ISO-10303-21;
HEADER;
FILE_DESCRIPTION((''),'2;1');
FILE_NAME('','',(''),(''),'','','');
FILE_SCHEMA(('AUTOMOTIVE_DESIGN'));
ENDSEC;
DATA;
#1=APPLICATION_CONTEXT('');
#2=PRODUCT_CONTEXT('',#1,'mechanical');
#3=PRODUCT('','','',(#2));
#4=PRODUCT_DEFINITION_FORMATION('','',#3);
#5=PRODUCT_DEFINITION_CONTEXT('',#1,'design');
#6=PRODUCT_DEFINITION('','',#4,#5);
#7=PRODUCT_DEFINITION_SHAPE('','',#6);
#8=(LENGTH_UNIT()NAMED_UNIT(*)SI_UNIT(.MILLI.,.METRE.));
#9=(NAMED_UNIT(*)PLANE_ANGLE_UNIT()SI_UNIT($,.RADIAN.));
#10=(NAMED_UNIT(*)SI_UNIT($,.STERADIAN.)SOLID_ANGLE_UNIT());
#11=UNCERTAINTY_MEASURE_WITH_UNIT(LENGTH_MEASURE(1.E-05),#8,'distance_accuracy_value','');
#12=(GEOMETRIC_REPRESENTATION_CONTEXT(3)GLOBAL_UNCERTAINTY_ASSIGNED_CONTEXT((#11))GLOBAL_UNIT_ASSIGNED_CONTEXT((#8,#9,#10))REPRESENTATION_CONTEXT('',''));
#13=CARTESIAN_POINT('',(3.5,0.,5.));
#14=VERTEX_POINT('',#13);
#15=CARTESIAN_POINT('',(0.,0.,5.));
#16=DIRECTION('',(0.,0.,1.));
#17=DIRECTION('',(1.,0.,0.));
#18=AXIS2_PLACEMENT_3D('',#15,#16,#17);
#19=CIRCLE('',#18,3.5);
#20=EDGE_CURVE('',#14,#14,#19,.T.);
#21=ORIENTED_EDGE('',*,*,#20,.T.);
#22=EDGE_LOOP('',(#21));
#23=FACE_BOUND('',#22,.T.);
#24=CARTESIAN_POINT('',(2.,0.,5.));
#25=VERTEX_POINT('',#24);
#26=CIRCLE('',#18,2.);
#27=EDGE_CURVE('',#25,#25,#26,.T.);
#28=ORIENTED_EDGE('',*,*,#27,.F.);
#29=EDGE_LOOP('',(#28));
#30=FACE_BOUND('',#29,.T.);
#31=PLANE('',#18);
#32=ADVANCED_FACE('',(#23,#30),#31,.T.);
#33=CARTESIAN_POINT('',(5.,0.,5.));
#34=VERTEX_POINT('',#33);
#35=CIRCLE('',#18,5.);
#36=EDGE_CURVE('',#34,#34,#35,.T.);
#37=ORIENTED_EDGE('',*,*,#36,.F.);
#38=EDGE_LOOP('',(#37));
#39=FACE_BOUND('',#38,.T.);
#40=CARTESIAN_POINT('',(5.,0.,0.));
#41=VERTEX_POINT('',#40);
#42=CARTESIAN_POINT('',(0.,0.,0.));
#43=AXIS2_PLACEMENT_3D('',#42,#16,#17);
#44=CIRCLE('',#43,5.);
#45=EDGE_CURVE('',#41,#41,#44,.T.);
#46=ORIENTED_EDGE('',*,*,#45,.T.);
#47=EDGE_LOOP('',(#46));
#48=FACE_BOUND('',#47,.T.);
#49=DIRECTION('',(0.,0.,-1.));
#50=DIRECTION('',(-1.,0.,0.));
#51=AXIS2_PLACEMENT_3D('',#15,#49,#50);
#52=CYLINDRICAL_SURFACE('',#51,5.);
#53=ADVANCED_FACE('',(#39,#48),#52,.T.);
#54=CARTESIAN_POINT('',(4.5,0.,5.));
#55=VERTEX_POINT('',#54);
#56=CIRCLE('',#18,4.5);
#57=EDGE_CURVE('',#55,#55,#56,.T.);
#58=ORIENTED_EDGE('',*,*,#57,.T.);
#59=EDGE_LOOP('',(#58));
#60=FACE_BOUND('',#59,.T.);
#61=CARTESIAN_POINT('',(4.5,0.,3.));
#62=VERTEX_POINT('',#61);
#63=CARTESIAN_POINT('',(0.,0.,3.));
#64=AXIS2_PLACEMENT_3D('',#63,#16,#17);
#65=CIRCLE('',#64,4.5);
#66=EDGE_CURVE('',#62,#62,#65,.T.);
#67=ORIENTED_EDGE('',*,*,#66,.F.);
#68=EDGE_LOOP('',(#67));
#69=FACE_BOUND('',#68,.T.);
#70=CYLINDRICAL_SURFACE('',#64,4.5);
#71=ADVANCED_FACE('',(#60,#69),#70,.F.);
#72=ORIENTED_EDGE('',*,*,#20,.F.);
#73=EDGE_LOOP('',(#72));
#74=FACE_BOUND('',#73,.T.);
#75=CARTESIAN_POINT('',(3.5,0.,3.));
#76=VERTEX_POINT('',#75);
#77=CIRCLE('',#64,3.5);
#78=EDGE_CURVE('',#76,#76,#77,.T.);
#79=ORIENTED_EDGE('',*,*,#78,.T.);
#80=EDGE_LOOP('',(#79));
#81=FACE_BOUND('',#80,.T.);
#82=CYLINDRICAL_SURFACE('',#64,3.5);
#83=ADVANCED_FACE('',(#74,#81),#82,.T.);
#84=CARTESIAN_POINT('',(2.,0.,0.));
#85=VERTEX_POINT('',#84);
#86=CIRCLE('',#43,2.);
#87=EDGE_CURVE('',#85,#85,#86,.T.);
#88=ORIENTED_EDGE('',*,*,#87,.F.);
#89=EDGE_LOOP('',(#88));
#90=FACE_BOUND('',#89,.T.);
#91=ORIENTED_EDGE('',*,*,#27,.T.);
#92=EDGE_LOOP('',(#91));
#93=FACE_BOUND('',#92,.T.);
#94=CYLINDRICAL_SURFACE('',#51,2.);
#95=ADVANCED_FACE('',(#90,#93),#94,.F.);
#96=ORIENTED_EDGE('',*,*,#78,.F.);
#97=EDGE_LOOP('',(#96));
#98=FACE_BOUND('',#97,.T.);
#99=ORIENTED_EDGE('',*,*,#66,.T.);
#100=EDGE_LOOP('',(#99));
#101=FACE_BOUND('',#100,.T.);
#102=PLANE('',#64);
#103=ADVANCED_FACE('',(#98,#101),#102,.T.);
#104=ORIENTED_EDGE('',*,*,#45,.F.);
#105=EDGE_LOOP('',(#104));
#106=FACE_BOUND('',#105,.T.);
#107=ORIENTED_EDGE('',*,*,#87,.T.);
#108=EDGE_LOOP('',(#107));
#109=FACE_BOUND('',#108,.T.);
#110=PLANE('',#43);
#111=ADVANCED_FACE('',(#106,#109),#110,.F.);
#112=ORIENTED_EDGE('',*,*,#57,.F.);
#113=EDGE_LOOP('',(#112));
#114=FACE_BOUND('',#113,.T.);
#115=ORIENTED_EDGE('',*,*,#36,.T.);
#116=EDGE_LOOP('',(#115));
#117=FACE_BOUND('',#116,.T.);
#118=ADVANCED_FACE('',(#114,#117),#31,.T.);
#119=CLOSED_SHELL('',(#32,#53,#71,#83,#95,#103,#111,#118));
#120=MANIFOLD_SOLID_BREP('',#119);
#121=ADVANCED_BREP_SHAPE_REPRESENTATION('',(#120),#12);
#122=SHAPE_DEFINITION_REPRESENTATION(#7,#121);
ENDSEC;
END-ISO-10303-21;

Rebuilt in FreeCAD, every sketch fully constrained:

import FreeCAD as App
import Part
import Sketcher

doc = App.newDocument("Part")
body = doc.addObject("PartDesign::Body", "Body")

sketch1 = doc.addObject("Sketcher::SketchObject", "Sketch")
body.addObject(sketch1)
sketch1.AttachmentSupport = (doc.XY_Plane, [""])
sketch1.MapMode = "FlatFace"
sketch1.addGeometry([
    Part.Circle(App.Vector(0, 0, 0), App.Vector(0, 0, 1), 5),
    Part.Circle(App.Vector(0, 0, 0), App.Vector(0, 0, 1), 2),
], False)
sketch1.addConstraint([
    Sketcher.Constraint("Coincident", 0, 3, -1, 1),
    Sketcher.Constraint("Coincident", 1, 3, -1, 1),
    Sketcher.Constraint("Diameter", 0, 10.0),
    Sketcher.Constraint("Diameter", 1, 4.0),
])
pad1 = doc.addObject("PartDesign::Pad", "Pad")
body.addObject(pad1)
pad1.Profile = sketch1
pad1.Length = 5

sketch2 = doc.addObject("Sketcher::SketchObject", "Sketch001")
body.addObject(sketch2)
sketch2.AttachmentSupport = (doc.XY_Plane, [""])
sketch2.MapMode = "FlatFace"
sketch2.AttachmentOffset = App.Placement(App.Vector(0, 0, 5), App.Rotation())
sketch2.addGeometry([
    Part.Circle(App.Vector(0, 0, 0), App.Vector(0, 0, 1), 4.5),
    Part.Circle(App.Vector(0, 0, 0), App.Vector(0, 0, 1), 3.5),
], False)
sketch2.addConstraint([
    Sketcher.Constraint("Coincident", 0, 3, -1, 1),
    Sketcher.Constraint("Coincident", 1, 3, -1, 1),
    Sketcher.Constraint("Diameter", 0, 9.0),
    Sketcher.Constraint("Diameter", 1, 7.0),
])
pocket1 = doc.addObject("PartDesign::Pocket", "Pocket")
body.addObject(pocket1)
pocket1.Profile = sketch2
pocket1.Length = 2

doc.recompute()
